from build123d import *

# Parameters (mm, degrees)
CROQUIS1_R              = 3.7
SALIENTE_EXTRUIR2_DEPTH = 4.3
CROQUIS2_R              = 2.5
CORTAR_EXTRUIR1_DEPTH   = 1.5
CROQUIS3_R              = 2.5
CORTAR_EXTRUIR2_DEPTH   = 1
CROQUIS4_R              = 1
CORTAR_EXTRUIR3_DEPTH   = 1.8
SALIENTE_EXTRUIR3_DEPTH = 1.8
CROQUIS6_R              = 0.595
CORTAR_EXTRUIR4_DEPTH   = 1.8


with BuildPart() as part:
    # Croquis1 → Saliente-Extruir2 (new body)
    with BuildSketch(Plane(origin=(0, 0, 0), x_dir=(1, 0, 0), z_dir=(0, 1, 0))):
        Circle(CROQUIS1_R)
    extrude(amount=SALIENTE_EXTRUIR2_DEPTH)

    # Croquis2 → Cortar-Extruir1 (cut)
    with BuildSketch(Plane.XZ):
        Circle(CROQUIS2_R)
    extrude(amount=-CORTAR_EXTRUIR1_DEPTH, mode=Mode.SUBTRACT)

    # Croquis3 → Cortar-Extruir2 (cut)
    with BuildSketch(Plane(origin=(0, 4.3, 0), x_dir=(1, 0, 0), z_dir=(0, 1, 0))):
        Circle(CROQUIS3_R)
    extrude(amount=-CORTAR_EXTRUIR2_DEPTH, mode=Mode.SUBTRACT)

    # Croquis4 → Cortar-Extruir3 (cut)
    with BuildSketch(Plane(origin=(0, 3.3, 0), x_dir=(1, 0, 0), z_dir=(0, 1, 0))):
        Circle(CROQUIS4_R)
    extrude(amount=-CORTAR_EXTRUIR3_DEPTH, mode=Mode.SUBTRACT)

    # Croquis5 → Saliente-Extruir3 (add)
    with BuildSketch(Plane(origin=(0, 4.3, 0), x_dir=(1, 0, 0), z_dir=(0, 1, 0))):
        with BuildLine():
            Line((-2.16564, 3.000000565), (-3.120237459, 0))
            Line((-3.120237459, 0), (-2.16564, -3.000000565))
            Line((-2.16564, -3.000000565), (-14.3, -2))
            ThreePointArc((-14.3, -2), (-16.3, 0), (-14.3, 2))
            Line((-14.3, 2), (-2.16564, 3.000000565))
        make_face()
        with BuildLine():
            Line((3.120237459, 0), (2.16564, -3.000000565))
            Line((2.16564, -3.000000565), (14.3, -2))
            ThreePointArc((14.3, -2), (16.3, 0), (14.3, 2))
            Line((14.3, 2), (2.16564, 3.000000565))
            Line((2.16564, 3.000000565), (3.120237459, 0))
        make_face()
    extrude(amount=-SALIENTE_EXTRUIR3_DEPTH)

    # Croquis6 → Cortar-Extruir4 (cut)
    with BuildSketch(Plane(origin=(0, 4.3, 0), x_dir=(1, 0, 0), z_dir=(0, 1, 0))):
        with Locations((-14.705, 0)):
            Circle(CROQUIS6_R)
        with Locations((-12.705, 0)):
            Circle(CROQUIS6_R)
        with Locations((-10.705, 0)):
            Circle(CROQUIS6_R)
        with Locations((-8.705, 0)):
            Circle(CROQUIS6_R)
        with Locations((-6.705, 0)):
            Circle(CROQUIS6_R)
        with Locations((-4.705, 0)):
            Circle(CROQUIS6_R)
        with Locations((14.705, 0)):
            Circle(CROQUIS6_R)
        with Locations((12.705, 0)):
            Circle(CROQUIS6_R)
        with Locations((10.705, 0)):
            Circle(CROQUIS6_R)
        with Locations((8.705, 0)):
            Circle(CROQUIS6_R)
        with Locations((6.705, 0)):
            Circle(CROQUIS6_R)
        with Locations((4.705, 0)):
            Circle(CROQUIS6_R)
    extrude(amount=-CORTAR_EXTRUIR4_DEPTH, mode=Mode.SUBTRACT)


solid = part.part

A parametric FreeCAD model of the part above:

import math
import FreeCAD as App
import Part
import Sketcher
from FreeCAD import Vector

doc = App.newDocument("Part")
body = doc.addObject("PartDesign::Body", "Body")

# Sketch on XZ plane
sketch1 = body.newObject("Sketcher::SketchObject", "Sketch")
sketch1.AttachmentSupport = (doc.getObject("XZ_Plane"), [""])
sketch1.MapMode = "FlatFace"
sketch1.addGeometry(Part.Circle(Vector(0, 0, 0), Vector(0, 0, 1), 3.7), False)
sketch1.addConstraint([
    Sketcher.Constraint("Coincident", 0, 3, -1, 1),
    Sketcher.Constraint("Diameter", 0, 7.4),
])
pad1 = body.newObject("PartDesign::Pad", "Pad")
pad1.Profile = sketch1
pad1.Length = 4.3
pad1.Reversed = True

# Sketch on XZ plane
sketch2 = body.newObject("Sketcher::SketchObject", "Sketch001")
sketch2.AttachmentSupport = (doc.getObject("XZ_Plane"), [""])
sketch2.MapMode = "FlatFace"
sketch2.addGeometry(Part.Circle(Vector(0, 0, 0), Vector(0, 0, 1), 2.5), False)
sketch2.addConstraint([
    Sketcher.Constraint("Coincident", 0, 3, -1, 1),
    Sketcher.Constraint("Diameter", 0, 5.0),
])
pocket1 = body.newObject("PartDesign::Pocket", "Pocket")
pocket1.Profile = sketch2
pocket1.Length = 1.5

# Sketch on XZ plane
sketch3 = body.newObject("Sketcher::SketchObject", "Sketch002")
sketch3.AttachmentSupport = (doc.getObject("XZ_Plane"), [""])
sketch3.MapMode = "FlatFace"
sketch3.AttachmentOffset = App.Placement(Vector(0, 0, -4.3), App.Rotation())
sketch3.addGeometry(Part.Circle(Vector(0, 0, 0), Vector(0, 0, 1), 2.5), False)
sketch3.addConstraint([
    Sketcher.Constraint("Coincident", 0, 3, -1, 1),
    Sketcher.Constraint("Diameter", 0, 5.0),
])
pocket2 = body.newObject("PartDesign::Pocket", "Pocket001")
pocket2.Profile = sketch3
pocket2.Length = 1
pocket2.Reversed = True

# Sketch on XZ plane
sketch4 = body.newObject("Sketcher::SketchObject", "Sketch003")
sketch4.AttachmentSupport = (doc.getObject("XZ_Plane"), [""])
sketch4.MapMode = "FlatFace"
sketch4.AttachmentOffset = App.Placement(Vector(0, 0, -3.3), App.Rotation())
sketch4.addGeometry(Part.Circle(Vector(0, 0, 0), Vector(0, 0, 1), 1), False)
sketch4.addConstraint([
    Sketcher.Constraint("Coincident", 0, 3, -1, 1),
    Sketcher.Constraint("Diameter", 0, 2.0),
])
pocket3 = body.newObject("PartDesign::Pocket", "Pocket002")
pocket3.Profile = sketch4
pocket3.Length = 1.8
pocket3.Reversed = True

# Sketch on XZ plane
sketch5 = body.newObject("Sketcher::SketchObject", "Sketch004")
sketch5.AttachmentSupport = (doc.getObject("XZ_Plane"), [""])
sketch5.MapMode = "FlatFace"
sketch5.AttachmentOffset = App.Placement(Vector(0, 0, -4.3), App.Rotation())
sketch5.addGeometry([
    Part.LineSegment(Vector(-3.1, 0, 0), Vector(-2.2, -3, 0)),  # 0
    Part.LineSegment(Vector(-2.2, -3, 0), Vector(-14.3, -2, 0)),  # 1
    Part.ArcOfCircle(Part.Circle(Vector(-14.3, 0, 0), Vector(0, 0, 1), 2), math.radians(90), math.radians(270)),  # 2
    Part.LineSegment(Vector(-14.3, 2, 0), Vector(-2.2, 3, 0)),  # 3
    Part.LineSegment(Vector(-2.2, 3, 0), Vector(-3.1, 0, 0)),  # 4
    Part.LineSegment(Vector(3.1, 0, 0), Vector(2.2, 3, 0)),  # 5
    Part.LineSegment(Vector(2.2, 3, 0), Vector(14.3, 2, 0)),  # 6
    Part.ArcOfCircle(Part.Circle(Vector(14.3, 0, 0), Vector(0, 0, 1), 2), math.radians(-90), math.radians(90)),  # 7
    Part.LineSegment(Vector(14.3, -2, 0), Vector(2.2, -3, 0)),  # 8
    Part.LineSegment(Vector(2.2, -3, 0), Vector(3.1, 0, 0)),  # 9
], False)
sketch5.addConstraint([
    Sketcher.Constraint("Coincident", 0, 2, 1, 1),
    Sketcher.Constraint("Coincident", 1, 2, 2, 2),
    Sketcher.Constraint("Coincident", 2, 1, 3, 1),
    Sketcher.Constraint("Coincident", 3, 2, 4, 1),
    Sketcher.Constraint("Coincident", 4, 2, 0, 1),
    Sketcher.Constraint("Coincident", 5, 2, 6, 1),
    Sketcher.Constraint("Coincident", 6, 2, 7, 2),
    Sketcher.Constraint("Coincident", 7, 1, 8, 1),
    Sketcher.Constraint("Coincident", 8, 2, 9, 1),
    Sketcher.Constraint("Coincident", 9, 2, 5, 1),
    Sketcher.Constraint("Equal", 2, 7),
    Sketcher.Constraint("Symmetric", 2, 3, 7, 3, -1, 1),
    Sketcher.Constraint("Symmetric", 0, 2, 5, 2, -1, 1),
    Sketcher.Constraint("Symmetric", 3, 2, 8, 2, -1, 1),
    Sketcher.Constraint("Symmetric", 4, 2, 9, 2, -1, 1),
    Sketcher.Constraint("Symmetric", 3, 2, 5, 2, -2),
    Sketcher.Constraint("Symmetric", 2, 1, 6, 2, -2),
    Sketcher.Constraint("PointOnObject", 4, 2, -1),
    Sketcher.Constraint("Parallel", 1, 6),
    Sketcher.Constraint("Parallel", 3, 8),
    Sketcher.Constraint("Vertical", 2, 3, 1, 2),
    Sketcher.Constraint("Radius", 2, 2.0),
    Sketcher.Constraint("DistanceY", 0, 2, -1, 1, 3.000001),
    Sketcher.Constraint("DistanceX", 2, 3, -1, 1, 14.3),
    Sketcher.Constraint("DistanceX", 0, 2, -1, 1, 2.16564),
    Sketcher.Constraint("Distance", 0, 3.148215),
])
pad2 = body.newObject("PartDesign::Pad", "Pad001")
pad2.Profile = sketch5
pad2.Length = 1.8

# Sketch on XZ plane
sketch6 = body.newObject("Sketcher::SketchObject", "Sketch005")
sketch6.AttachmentSupport = (doc.getObject("XZ_Plane"), [""])
sketch6.MapMode = "FlatFace"
sketch6.AttachmentOffset = App.Placement(Vector(0, 0, -4.3), App.Rotation())
sketch6.addGeometry([
    Part.Circle(Vector(-14.7, 0, 0), Vector(0, 0, 1), 0.6),  # 0
    Part.Circle(Vector(-12.7, 0, 0), Vector(0, 0, 1), 0.6),  # 1
    Part.Circle(Vector(-10.7, 0, 0), Vector(0, 0, 1), 0.6),  # 2
    Part.Circle(Vector(-8.7, 0, 0), Vector(0, 0, 1), 0.6),  # 3
    Part.Circle(Vector(-6.7, 0, 0), Vector(0, 0, 1), 0.6),  # 4
    Part.Circle(Vector(-4.7, 0, 0), Vector(0, 0, 1), 0.6),  # 5
    Part.Circle(Vector(14.7, 0, 0), Vector(0, 0, 1), 0.6),  # 6
    Part.Circle(Vector(12.7, 0, 0), Vector(0, 0, 1), 0.6),  # 7
    Part.Circle(Vector(10.7, 0, 0), Vector(0, 0, 1), 0.6),  # 8
    Part.Circle(Vector(8.7, 0, 0), Vector(0, 0, 1), 0.6),  # 9
    Part.Circle(Vector(6.7, 0, 0), Vector(0, 0, 1), 0.6),  # 10
    Part.Circle(Vector(4.7, 0, 0), Vector(0, 0, 1), 0.6),  # 11
], False)
sketch6.addConstraint([
    Sketcher.Constraint("Equal", 0, 1),
    Sketcher.Constraint("Equal", 1, 2),
    Sketcher.Constraint("Equal", 2, 3),
    Sketcher.Constraint("Equal", 3, 4),
    Sketcher.Constraint("Equal", 4, 5),
    Sketcher.Constraint("Equal", 5, 6),
    Sketcher.Constraint("Equal", 6, 7),
    Sketcher.Constraint("Equal", 7, 8),
    Sketcher.Constraint("Equal", 8, 9),
    Sketcher.Constraint("Equal", 9, 10),
    Sketcher.Constraint("Equal", 10, 11),
    Sketcher.Constraint("Symmetric", 0, 3, 6, 3, -1, 1),
    Sketcher.Constraint("Symmetric", 1, 3, 7, 3, -1, 1),
    Sketcher.Constraint("Symmetric", 2, 3, 8, 3, -1, 1),
    Sketcher.Constraint("Symmetric", 3, 3, 9, 3, -1, 1),
    Sketcher.Constraint("Symmetric", 4, 3, 10, 3, -1, 1),
    Sketcher.Constraint("Symmetric", 5, 3, 11, 3, -1, 1),
    Sketcher.Constraint("PointOnObject", 0, 3, -1),
    Sketcher.Constraint("PointOnObject", 1, 3, -1),
    Sketcher.Constraint("PointOnObject", 2, 3, -1),
    Sketcher.Constraint("PointOnObject", 3, 3, -1),
    Sketcher.Constraint("PointOnObject", 4, 3, -1),
    Sketcher.Constraint("PointOnObject", 5, 3, -1),
    Sketcher.Constraint("Diameter", 0, 1.19),
    Sketcher.Constraint("DistanceX", 0, 3, 1, 3, 2.0),
    Sketcher.Constraint("DistanceX", 1, 3, 2, 3, 2.0),
    Sketcher.Constraint("DistanceX", 2, 3, 3, 3, 2.0),
    Sketcher.Constraint("DistanceX", 3, 3, 4, 3, 2.0),
    Sketcher.Constraint("DistanceX", 4, 3, 5, 3, 2.0),
    Sketcher.Constraint("DistanceX", 5, 3, 6, 3, 19.41),
])
pocket4 = body.newObject("PartDesign::Pocket", "Pocket003")
pocket4.Profile = sketch6
pocket4.Length = 1.8
pocket4.Reversed = True

doc.recompute()
